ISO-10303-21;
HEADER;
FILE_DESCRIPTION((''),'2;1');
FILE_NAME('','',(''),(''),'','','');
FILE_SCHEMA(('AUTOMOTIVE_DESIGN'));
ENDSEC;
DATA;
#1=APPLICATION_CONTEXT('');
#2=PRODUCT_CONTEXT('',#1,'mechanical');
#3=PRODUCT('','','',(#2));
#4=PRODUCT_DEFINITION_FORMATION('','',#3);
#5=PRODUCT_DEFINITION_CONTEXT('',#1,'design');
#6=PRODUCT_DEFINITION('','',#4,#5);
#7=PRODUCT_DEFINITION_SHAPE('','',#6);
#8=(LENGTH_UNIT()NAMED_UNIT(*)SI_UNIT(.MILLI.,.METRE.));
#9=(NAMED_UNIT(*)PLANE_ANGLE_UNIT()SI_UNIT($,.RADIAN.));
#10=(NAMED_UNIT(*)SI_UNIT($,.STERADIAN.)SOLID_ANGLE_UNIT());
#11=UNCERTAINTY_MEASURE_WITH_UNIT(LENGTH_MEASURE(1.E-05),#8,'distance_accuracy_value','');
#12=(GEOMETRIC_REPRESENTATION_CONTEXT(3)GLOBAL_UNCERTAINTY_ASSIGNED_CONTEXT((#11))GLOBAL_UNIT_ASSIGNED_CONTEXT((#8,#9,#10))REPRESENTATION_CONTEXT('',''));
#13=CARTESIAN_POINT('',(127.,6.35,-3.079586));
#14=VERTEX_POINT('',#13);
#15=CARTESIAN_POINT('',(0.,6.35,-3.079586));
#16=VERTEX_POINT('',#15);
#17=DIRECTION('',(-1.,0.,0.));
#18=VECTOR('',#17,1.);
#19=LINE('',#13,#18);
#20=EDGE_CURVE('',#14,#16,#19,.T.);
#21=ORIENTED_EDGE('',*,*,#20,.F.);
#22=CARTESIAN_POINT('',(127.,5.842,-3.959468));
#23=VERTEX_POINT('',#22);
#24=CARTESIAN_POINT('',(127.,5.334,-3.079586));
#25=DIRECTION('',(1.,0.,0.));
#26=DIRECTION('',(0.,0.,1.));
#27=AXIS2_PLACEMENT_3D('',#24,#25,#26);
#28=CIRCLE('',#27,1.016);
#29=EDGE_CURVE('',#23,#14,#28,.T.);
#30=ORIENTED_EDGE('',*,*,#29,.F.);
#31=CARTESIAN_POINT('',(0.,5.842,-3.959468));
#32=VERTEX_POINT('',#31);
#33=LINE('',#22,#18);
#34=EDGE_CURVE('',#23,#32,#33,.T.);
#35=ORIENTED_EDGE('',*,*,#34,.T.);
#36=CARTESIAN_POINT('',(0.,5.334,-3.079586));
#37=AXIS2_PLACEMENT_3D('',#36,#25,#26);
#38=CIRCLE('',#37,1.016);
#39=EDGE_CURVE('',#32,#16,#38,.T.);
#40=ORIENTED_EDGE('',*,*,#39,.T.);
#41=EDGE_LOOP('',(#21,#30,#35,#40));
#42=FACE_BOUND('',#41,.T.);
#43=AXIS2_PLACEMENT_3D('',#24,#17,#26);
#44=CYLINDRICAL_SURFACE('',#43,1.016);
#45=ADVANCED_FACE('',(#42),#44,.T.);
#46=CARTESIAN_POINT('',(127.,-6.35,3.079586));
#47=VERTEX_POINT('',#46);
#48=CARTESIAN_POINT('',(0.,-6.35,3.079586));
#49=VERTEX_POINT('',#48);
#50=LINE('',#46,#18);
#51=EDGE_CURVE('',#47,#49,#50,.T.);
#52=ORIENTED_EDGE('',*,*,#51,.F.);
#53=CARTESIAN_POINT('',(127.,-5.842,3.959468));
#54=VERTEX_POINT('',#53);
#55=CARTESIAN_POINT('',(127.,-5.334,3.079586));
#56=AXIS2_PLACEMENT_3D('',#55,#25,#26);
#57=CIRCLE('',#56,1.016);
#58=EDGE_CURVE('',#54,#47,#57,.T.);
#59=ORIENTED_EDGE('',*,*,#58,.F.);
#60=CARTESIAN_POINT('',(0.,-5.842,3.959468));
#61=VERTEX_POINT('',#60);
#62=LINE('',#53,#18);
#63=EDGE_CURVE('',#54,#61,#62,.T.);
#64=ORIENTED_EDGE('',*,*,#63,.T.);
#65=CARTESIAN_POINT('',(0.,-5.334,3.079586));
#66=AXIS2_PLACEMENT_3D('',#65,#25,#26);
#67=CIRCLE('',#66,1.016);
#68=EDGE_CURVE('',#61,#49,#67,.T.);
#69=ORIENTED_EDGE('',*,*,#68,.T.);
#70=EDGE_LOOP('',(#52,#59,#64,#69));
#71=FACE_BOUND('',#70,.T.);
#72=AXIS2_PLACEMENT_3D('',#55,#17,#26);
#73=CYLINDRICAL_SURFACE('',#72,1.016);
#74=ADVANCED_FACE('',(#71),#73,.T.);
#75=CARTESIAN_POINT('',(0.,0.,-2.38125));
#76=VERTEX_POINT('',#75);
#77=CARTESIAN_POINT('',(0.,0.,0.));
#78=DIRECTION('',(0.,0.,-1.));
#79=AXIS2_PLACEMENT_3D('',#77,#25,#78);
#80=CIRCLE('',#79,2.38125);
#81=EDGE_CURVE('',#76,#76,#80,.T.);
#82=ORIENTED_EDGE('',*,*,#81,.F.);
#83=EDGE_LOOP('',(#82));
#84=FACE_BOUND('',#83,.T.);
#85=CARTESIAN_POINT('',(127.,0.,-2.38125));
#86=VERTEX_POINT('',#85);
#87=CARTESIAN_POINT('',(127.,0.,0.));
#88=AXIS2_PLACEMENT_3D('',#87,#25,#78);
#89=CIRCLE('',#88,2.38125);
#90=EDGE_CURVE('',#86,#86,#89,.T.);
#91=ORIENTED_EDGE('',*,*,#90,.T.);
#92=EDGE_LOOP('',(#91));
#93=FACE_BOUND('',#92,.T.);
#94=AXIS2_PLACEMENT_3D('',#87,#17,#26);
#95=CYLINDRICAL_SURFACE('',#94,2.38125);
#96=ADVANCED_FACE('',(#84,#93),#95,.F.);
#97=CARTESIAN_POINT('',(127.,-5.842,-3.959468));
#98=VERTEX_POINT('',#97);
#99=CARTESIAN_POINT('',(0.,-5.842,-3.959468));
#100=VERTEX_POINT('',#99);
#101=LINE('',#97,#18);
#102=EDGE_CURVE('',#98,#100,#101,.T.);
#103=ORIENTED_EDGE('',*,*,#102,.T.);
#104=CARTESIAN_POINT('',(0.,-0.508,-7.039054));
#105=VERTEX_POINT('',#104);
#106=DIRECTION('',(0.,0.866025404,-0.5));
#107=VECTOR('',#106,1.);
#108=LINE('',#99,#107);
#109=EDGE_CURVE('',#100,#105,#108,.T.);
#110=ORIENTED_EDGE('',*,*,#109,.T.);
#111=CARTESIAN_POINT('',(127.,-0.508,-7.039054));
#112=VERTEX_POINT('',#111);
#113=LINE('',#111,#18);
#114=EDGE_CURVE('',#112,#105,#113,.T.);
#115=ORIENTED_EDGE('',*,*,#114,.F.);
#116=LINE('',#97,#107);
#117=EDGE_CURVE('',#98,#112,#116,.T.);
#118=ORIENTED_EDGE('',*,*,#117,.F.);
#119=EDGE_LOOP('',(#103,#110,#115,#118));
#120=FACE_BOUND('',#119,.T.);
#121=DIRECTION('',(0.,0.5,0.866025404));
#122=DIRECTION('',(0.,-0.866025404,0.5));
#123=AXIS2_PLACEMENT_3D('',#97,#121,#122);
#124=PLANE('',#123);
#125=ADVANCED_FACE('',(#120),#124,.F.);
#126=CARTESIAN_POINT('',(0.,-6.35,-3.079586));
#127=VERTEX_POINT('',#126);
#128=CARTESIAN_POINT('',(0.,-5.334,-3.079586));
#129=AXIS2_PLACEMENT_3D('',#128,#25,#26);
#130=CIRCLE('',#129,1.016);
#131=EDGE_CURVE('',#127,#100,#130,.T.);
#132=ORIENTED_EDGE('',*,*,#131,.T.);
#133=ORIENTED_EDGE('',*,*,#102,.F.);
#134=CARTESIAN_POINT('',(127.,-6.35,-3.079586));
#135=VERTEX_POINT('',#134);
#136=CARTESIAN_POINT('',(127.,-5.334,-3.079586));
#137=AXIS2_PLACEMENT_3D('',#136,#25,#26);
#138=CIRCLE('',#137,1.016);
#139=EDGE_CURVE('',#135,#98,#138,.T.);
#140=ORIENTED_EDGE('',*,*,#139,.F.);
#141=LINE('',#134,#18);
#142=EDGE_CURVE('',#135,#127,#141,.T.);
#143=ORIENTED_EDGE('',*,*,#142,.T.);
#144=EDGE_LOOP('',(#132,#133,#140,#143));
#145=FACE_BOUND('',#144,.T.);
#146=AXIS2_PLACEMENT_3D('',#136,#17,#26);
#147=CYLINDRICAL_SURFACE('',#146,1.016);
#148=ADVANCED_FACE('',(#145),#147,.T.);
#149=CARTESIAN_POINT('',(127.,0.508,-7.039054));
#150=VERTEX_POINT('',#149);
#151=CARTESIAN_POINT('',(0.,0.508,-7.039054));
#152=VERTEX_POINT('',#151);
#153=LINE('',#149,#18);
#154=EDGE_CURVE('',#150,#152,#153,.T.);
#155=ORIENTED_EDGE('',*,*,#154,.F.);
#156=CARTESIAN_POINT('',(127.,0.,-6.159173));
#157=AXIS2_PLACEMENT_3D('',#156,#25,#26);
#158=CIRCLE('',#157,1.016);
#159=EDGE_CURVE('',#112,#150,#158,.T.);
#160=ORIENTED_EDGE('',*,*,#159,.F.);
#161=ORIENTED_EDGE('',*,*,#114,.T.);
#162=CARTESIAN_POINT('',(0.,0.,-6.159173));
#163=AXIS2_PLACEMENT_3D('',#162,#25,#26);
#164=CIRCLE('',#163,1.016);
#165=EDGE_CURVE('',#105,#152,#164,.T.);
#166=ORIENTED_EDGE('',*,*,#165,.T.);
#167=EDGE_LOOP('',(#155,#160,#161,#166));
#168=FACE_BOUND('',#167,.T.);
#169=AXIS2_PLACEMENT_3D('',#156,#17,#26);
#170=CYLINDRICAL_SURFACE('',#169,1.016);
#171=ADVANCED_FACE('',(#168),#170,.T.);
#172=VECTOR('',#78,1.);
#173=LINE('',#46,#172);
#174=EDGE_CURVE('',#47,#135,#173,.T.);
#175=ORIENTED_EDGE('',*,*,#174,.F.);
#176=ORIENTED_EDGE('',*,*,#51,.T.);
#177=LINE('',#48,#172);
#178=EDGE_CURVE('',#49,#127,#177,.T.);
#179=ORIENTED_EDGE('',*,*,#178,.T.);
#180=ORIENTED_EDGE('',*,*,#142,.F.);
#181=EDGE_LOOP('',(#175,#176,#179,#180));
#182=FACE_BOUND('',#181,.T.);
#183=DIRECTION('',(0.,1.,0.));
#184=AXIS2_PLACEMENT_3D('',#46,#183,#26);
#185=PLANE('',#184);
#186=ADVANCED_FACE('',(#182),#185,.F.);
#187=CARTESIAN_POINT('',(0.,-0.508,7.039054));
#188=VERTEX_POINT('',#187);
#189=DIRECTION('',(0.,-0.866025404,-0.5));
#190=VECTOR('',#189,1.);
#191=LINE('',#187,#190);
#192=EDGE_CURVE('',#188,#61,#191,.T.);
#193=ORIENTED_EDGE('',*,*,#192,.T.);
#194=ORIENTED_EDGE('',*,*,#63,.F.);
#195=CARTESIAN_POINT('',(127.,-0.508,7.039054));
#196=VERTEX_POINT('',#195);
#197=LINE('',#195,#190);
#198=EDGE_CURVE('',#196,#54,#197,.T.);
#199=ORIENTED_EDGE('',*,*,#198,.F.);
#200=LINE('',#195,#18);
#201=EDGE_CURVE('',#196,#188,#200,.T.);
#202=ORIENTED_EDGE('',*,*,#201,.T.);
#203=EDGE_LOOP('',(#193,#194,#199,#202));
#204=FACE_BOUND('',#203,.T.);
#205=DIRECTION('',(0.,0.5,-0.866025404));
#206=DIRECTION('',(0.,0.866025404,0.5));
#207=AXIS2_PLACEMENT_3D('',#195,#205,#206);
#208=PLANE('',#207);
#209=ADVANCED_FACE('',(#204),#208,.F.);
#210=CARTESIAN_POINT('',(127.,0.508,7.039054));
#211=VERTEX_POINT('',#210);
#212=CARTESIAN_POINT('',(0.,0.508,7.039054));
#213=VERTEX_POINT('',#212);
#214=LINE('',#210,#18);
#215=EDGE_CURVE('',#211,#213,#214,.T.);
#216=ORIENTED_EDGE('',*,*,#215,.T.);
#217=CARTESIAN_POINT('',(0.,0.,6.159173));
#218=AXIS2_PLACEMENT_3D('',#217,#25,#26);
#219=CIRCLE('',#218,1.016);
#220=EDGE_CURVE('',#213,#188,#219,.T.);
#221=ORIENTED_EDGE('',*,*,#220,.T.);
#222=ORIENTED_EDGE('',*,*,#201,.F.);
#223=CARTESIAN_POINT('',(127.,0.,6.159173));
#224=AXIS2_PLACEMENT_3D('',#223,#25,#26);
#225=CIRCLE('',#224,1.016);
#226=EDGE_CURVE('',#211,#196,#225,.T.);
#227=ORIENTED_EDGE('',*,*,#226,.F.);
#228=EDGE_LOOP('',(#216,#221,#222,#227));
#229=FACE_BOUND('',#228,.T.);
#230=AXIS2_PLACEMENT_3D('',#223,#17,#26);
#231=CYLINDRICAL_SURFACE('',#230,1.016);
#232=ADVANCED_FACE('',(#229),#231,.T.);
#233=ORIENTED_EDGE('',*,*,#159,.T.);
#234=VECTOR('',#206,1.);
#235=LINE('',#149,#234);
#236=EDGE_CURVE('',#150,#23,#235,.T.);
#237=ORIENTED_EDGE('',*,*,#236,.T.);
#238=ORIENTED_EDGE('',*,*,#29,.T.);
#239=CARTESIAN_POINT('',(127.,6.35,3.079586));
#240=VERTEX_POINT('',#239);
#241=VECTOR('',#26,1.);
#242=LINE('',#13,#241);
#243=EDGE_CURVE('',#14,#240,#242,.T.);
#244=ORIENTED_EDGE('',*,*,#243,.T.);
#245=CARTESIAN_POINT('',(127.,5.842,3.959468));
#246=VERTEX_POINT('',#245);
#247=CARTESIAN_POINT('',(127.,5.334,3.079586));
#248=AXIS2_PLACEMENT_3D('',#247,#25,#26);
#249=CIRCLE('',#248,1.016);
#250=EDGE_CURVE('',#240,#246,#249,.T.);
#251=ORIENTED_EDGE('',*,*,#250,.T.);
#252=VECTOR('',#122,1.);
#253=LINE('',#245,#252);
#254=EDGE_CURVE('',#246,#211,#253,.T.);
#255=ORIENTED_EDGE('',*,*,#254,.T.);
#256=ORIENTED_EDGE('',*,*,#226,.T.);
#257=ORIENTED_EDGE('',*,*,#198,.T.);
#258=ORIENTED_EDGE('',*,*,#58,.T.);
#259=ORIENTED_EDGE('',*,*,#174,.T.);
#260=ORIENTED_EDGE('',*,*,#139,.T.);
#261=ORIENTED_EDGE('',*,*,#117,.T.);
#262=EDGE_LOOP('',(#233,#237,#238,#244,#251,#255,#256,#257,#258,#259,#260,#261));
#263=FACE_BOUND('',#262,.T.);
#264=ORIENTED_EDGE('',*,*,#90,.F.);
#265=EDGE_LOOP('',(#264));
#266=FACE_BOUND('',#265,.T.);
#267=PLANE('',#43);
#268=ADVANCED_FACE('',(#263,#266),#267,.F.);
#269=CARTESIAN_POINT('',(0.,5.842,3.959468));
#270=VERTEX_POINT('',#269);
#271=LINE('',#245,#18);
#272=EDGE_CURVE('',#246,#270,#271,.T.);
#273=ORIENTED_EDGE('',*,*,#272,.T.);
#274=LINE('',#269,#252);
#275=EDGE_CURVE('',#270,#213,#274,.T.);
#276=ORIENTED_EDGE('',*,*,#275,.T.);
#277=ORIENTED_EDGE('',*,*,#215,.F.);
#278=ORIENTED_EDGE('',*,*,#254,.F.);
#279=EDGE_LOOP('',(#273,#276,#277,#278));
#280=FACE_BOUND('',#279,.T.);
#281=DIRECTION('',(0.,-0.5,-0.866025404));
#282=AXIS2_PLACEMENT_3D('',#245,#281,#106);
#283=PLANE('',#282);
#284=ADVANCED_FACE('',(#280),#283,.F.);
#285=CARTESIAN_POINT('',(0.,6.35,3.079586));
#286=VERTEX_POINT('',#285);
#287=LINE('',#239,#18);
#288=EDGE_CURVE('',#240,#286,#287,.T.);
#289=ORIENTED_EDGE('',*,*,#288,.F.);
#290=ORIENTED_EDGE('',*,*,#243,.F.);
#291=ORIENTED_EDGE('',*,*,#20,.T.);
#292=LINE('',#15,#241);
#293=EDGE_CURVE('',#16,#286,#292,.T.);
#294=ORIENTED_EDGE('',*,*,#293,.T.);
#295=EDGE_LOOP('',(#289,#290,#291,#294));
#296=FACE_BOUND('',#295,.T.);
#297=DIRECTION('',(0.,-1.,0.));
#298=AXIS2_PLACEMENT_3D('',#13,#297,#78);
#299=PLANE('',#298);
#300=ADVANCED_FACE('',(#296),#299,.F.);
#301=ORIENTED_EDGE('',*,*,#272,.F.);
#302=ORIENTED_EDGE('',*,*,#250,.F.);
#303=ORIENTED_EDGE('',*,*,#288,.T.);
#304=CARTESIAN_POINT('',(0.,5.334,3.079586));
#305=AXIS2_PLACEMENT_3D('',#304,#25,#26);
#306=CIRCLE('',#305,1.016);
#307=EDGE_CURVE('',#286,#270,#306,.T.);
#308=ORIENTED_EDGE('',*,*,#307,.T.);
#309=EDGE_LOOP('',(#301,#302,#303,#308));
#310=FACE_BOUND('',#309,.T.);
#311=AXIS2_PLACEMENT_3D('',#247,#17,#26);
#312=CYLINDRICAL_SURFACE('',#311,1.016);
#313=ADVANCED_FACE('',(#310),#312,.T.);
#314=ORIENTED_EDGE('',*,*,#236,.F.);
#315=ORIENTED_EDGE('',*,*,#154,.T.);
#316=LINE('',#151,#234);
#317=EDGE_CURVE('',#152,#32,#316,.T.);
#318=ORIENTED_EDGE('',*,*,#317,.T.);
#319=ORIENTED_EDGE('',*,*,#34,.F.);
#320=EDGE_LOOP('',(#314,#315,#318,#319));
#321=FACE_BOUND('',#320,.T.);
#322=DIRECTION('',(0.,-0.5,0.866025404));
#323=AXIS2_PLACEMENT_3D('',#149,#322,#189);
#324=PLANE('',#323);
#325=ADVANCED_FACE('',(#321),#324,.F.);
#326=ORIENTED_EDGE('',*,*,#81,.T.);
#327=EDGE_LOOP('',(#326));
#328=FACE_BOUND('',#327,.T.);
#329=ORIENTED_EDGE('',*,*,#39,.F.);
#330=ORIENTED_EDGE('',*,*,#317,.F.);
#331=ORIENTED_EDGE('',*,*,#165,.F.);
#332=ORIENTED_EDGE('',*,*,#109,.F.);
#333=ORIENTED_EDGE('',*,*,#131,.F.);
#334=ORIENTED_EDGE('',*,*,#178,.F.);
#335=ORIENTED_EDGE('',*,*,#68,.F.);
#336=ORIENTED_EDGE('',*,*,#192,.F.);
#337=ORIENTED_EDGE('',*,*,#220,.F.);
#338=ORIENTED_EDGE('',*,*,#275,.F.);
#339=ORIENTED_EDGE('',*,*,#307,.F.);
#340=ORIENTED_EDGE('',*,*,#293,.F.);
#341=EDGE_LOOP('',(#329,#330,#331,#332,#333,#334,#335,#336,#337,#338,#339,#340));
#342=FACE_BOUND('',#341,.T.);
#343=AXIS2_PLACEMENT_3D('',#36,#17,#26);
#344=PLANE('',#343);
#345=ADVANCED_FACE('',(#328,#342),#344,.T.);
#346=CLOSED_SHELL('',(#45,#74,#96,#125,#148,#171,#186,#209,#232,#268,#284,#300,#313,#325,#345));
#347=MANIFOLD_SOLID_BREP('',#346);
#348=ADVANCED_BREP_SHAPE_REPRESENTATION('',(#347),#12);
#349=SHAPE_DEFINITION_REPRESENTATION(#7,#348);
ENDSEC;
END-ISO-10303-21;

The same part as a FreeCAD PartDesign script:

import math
import FreeCAD as App
import Part
import Sketcher

V = App.Vector
Q = App.Units.Quantity

doc = App.newDocument("Part")
body = doc.addObject("PartDesign::Body", "Body")

sketch1 = body.newObject("Sketcher::SketchObject", "Sketch")
sketch1.AttachmentSupport = (doc.getObject("YZ_Plane"), [""])
sketch1.MapMode = "FlatFace"
sketch1.addGeometry(Part.LineSegment(V(0.5, -7, 0), V(5.8, -4, 0)), False)
sketch1.addGeometry(Part.ArcOfCircle(Part.Circle(V(5.3, -3.1, 0), V(0, 0, 1), 1), math.radians(-60), math.radians(0)), False)
sketch1.addGeometry(Part.LineSegment(V(6.3, -3.1, 0), V(6.3, 3.1, 0)), False)
sketch1.addGeometry(Part.ArcOfCircle(Part.Circle(V(5.3, 3.1, 0), V(0, 0, 1), 1), math.radians(0), math.radians(60)), False)
sketch1.addGeometry(Part.LineSegment(V(5.8, 4, 0), V(0.5, 7, 0)), False)
sketch1.addGeometry(Part.ArcOfCircle(Part.Circle(V(0, 6.2, 0), V(0, 0, 1), 1), math.radians(60), math.radians(120)), False)
sketch1.addGeometry(Part.LineSegment(V(-0.5, 7, 0), V(-5.8, 4, 0)), False)
sketch1.addGeometry(Part.ArcOfCircle(Part.Circle(V(-5.3, 3.1, 0), V(0, 0, 1), 1), math.radians(120), math.radians(180)), False)
sketch1.addGeometry(Part.LineSegment(V(-6.3, 3.1, 0), V(-6.3, -3.1, 0)), False)
sketch1.addGeometry(Part.ArcOfCircle(Part.Circle(V(-5.3, -3.1, 0), V(0, 0, 1), 1), math.radians(-180), math.radians(-120)), False)
sketch1.addGeometry(Part.LineSegment(V(-5.8, -4, 0), V(-0.5, -7, 0)), False)
sketch1.addGeometry(Part.ArcOfCircle(Part.Circle(V(0, -6.2, 0), V(0, 0, 1), 1), math.radians(-120), math.radians(-60)), False)
sketch1.addGeometry(Part.Circle(V(0, 0, 0), V(0, 0, 1), 2.4), False)
sketch1.addConstraint(Sketcher.Constraint("Tangent", 0, 2, 1, 1))
sketch1.addConstraint(Sketcher.Constraint("Tangent", 1, 2, 2, 1))
sketch1.addConstraint(Sketcher.Constraint("Tangent", 2, 2, 3, 1))
sketch1.addConstraint(Sketcher.Constraint("Tangent", 3, 2, 4, 1))
sketch1.addConstraint(Sketcher.Constraint("Tangent", 4, 2, 5, 1))
sketch1.addConstraint(Sketcher.Constraint("Tangent", 5, 2, 6, 1))
sketch1.addConstraint(Sketcher.Constraint("Tangent", 6, 2, 7, 1))
sketch1.addConstraint(Sketcher.Constraint("Tangent", 7, 2, 8, 1))
sketch1.addConstraint(Sketcher.Constraint("Tangent", 8, 2, 9, 1))
sketch1.addConstraint(Sketcher.Constraint("Tangent", 9, 2, 10, 1))
sketch1.addConstraint(Sketcher.Constraint("Tangent", 10, 2, 11, 1))
sketch1.addConstraint(Sketcher.Constraint("Tangent", 11, 2, 0, 1))
sketch1.addConstraint(Sketcher.Constraint("Vertical", 2))
sketch1.addConstraint(Sketcher.Constraint("Vertical", 8))
sketch1.addConstraint(Sketcher.Constraint("Coincident", 12, 3, -1, 1))
sketch1.addConstraint(Sketcher.Constraint("Equal", 1, 3))
sketch1.addConstraint(Sketcher.Constraint("Equal", 3, 5))
sketch1.addConstraint(Sketcher.Constraint("Equal", 5, 7))
sketch1.addConstraint(Sketcher.Constraint("Equal", 7, 9))
sketch1.addConstraint(Sketcher.Constraint("Equal", 9, 11))
sketch1.addConstraint(Sketcher.Constraint("Symmetric", 1, 3, 7, 3, -1, 1))
sketch1.addConstraint(Sketcher.Constraint("Symmetric", 5, 3, 11, 3, -1, 1))
sketch1.addConstraint(Sketcher.Constraint("Symmetric", 4, 2, 5, 2, -2))
sketch1.addConstraint(Sketcher.Constraint("Parallel", 4, 10))
sketch1.addConstraint(Sketcher.Constraint("Radius", 1, Q("0.04 in")))
sketch1.addConstraint(Sketcher.Constraint("Diameter", 12, Q("0.1875 in")))
sketch1.addConstraint(Sketcher.Constraint("Angle", 0, Q("30 deg")))
sketch1.addConstraint(Sketcher.Constraint("DistanceX", -1, 1, 1, 3, Q("0.21 in")))
sketch1.addConstraint(Sketcher.Constraint("DistanceY", 2, 1, 2, 2, Q("6.159173 mm")))
pad1 = body.newObject("PartDesign::Pad", "Pad")
pad1.Profile = sketch1
pad1.Length = Q("5 in")

doc.recompute()
